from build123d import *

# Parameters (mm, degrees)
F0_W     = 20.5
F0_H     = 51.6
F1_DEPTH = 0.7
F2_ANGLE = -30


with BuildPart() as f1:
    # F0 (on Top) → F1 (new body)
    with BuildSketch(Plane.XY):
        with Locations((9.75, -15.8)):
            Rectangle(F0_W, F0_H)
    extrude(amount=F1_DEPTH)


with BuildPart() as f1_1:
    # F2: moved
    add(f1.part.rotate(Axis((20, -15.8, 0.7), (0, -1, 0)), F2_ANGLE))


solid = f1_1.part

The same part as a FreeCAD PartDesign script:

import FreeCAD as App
import Part
import Sketcher
from FreeCAD import Vector


def add_polygon(sketch, points):
    """Adds a closed chain of lines whose ends are joined by coincident constraints."""
    first, n = sketch.GeometryCount, len(points)
    for a, b in zip(points, points[1:] + points[:1]):
        sketch.addGeometry(Part.LineSegment(App.Vector(*a, 0), App.Vector(*b, 0)), False)
    for i in range(n):
        sketch.addConstraint(Sketcher.Constraint("Coincident", first + i, 2, first + (i + 1) % n, 1))

doc = App.newDocument("Part")
params = doc.addObject("Spreadsheet::Sheet", "Params")
for row, (alias, value) in enumerate([
    ("sketch1_width", "20.5 mm"),
    ("sketch1_height", "51.6 mm"),
    ("pad1_length", "0.7 mm"),
], start=1):
    params.set(f"A{row}", alias)
    params.set(f"B{row}", "=" + value)
    params.setAlias(f"B{row}", alias)

body = doc.addObject("PartDesign::Body", "Body")

# Sketch on XY plane
sketch1 = body.newObject("Sketcher::SketchObject", "Sketch")
sketch1.AttachmentSupport = (doc.getObject("XY_Plane"), [""])
sketch1.MapMode = "FlatFace"
add_polygon(sketch1, [(0, 10), (0, -42), (20, -42), (20, 10)])  # lines 0-3
sketch1.addConstraint([
    Sketcher.Constraint("Vertical", 0),
    Sketcher.Constraint("Horizontal", 1),
    Sketcher.Constraint("Vertical", 2),
    Sketcher.Constraint("Horizontal", 3),
    Sketcher.Constraint("DistanceX", 1, 1, 1, 2, 20.5),
    Sketcher.Constraint("DistanceY", 0, 2, 0, 1, 51.6),
    Sketcher.Constraint("DistanceX", -1, 1, 1, 2, 20.0),
    Sketcher.Constraint("DistanceY", -1, 1, 2, 2, 10.0),
])
sketch1.setExpression("Constraints[8]", "Params.sketch1_width")
sketch1.setExpression("Constraints[9]", "Params.sketch1_height")
pad1 = body.newObject("PartDesign::Pad", "Pad")
pad1.Profile = sketch1
pad1.setExpression("Length", "Params.pad1_length")
body2 = doc.addObject("PartDesign::Body", "Body001")
doc.recompute()

body.Placement = App.Placement(Vector(2.329492, 0, 10.093782), App.Rotation(Vector(0, -1, 0), 330))
boolean = body2.newObject("PartDesign::Boolean", "Boolean")
boolean.Type = "Fuse"
boolean.addObjects([body])

doc.recompute()
